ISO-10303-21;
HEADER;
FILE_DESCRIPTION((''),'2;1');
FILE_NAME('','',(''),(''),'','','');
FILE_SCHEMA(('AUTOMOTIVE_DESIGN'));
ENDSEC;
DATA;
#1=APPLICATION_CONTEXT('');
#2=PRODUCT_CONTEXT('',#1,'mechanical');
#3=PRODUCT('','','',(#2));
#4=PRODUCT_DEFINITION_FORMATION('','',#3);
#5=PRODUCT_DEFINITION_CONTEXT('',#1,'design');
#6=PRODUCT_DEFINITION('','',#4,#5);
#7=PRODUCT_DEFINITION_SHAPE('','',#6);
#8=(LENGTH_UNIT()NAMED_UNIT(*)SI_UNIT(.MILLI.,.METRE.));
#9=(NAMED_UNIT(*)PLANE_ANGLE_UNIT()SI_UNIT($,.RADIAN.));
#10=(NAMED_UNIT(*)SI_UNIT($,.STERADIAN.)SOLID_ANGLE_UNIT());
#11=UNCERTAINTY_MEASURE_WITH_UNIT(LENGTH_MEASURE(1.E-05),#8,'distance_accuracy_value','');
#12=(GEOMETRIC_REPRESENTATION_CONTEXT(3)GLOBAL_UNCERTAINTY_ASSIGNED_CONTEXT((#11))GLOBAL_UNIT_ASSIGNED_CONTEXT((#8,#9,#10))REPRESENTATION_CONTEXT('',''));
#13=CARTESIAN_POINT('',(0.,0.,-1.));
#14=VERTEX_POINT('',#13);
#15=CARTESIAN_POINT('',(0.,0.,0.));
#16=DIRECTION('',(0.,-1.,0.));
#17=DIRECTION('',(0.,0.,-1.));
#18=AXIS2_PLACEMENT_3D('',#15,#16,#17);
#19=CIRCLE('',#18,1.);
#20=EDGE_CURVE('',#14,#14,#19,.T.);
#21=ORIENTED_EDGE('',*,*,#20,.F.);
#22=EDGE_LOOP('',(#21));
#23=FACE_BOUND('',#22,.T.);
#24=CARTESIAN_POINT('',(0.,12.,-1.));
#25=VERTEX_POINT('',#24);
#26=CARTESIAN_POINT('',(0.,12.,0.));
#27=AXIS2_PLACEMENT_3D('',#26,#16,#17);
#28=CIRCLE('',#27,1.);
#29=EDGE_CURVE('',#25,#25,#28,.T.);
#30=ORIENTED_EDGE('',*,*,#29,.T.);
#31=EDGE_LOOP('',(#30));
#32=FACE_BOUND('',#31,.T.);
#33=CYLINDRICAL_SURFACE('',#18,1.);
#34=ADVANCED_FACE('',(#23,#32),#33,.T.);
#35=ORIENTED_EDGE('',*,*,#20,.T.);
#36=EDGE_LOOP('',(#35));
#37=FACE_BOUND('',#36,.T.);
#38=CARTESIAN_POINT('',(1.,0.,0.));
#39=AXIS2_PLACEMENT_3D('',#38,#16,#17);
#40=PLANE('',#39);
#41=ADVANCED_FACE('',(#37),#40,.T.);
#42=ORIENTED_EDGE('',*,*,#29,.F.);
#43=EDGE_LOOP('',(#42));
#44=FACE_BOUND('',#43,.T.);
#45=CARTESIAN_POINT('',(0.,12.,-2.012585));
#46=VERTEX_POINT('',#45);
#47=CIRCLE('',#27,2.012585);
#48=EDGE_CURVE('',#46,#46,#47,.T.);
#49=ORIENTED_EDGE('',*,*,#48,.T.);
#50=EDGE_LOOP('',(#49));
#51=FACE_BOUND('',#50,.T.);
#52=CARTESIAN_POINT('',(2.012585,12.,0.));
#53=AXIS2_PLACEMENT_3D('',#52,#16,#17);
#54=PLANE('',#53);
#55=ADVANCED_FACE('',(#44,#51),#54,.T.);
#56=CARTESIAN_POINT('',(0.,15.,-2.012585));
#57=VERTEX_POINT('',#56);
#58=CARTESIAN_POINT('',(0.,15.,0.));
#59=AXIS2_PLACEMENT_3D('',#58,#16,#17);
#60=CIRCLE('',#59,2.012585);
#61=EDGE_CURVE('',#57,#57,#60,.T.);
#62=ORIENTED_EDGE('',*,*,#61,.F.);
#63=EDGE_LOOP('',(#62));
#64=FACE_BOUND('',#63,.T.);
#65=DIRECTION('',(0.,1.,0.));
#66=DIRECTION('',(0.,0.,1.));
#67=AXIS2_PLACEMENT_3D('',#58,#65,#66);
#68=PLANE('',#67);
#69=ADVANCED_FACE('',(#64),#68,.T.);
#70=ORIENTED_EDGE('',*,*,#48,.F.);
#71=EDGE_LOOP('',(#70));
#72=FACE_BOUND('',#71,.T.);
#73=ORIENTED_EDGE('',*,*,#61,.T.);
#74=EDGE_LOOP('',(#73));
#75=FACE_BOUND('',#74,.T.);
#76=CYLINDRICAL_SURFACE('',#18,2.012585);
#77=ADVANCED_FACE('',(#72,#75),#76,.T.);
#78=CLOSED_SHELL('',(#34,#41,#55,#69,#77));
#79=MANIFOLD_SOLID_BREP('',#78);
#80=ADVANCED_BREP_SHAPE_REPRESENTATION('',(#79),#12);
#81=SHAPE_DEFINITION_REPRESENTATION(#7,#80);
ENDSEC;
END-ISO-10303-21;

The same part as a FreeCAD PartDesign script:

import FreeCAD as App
import Part
import Sketcher

V = App.Vector


def add_polygon(sketch, points):
    """Adds a closed chain of lines whose ends are joined by coincident constraints."""
    first, n = sketch.GeometryCount, len(points)
    for a, b in zip(points, points[1:] + points[:1]):
        sketch.addGeometry(Part.LineSegment(App.Vector(*a, 0), App.Vector(*b, 0)), False)
    for i in range(n):
        sketch.addConstraint(Sketcher.Constraint("Coincident", first + i, 2, first + (i + 1) % n, 1))

doc = App.newDocument("Part")
body = doc.addObject("PartDesign::Body", "Body")

# Sketch on XY plane
sketch1 = body.newObject("Sketcher::SketchObject", "Sketch")
sketch1.AttachmentSupport = (doc.getObject("XY_Plane"), [""])
sketch1.MapMode = "FlatFace"
add_polygon(sketch1, [(0, 15), (0, 0), (1, 0), (1, 12), (2, 12), (2, 15)])  # lines 0-5
sketch1.addConstraint([
    Sketcher.Constraint("Vertical", 0),
    Sketcher.Constraint("Horizontal", 1),
    Sketcher.Constraint("Vertical", 2),
    Sketcher.Constraint("Horizontal", 3),
    Sketcher.Constraint("Vertical", 4),
    Sketcher.Constraint("Horizontal", 5),
    Sketcher.Constraint("Coincident", 0, 2, -1, 1),
    Sketcher.Constraint("DistanceX", 1, 1, 1, 2, 1.0),
    Sketcher.Constraint("DistanceY", 0, 2, 0, 1, 15.0),
    Sketcher.Constraint("DistanceY", 2, 1, 2, 2, 12.0),
    Sketcher.Constraint("DistanceX", 3, 1, 3, 2, 1.012585),
])
revolution = body.newObject("PartDesign::Revolution", "Revolution")
revolution.Profile = sketch1
revolution.ReferenceAxis = (sketch1, ["V_Axis"])
revolution.Angle = 360

doc.recompute()
